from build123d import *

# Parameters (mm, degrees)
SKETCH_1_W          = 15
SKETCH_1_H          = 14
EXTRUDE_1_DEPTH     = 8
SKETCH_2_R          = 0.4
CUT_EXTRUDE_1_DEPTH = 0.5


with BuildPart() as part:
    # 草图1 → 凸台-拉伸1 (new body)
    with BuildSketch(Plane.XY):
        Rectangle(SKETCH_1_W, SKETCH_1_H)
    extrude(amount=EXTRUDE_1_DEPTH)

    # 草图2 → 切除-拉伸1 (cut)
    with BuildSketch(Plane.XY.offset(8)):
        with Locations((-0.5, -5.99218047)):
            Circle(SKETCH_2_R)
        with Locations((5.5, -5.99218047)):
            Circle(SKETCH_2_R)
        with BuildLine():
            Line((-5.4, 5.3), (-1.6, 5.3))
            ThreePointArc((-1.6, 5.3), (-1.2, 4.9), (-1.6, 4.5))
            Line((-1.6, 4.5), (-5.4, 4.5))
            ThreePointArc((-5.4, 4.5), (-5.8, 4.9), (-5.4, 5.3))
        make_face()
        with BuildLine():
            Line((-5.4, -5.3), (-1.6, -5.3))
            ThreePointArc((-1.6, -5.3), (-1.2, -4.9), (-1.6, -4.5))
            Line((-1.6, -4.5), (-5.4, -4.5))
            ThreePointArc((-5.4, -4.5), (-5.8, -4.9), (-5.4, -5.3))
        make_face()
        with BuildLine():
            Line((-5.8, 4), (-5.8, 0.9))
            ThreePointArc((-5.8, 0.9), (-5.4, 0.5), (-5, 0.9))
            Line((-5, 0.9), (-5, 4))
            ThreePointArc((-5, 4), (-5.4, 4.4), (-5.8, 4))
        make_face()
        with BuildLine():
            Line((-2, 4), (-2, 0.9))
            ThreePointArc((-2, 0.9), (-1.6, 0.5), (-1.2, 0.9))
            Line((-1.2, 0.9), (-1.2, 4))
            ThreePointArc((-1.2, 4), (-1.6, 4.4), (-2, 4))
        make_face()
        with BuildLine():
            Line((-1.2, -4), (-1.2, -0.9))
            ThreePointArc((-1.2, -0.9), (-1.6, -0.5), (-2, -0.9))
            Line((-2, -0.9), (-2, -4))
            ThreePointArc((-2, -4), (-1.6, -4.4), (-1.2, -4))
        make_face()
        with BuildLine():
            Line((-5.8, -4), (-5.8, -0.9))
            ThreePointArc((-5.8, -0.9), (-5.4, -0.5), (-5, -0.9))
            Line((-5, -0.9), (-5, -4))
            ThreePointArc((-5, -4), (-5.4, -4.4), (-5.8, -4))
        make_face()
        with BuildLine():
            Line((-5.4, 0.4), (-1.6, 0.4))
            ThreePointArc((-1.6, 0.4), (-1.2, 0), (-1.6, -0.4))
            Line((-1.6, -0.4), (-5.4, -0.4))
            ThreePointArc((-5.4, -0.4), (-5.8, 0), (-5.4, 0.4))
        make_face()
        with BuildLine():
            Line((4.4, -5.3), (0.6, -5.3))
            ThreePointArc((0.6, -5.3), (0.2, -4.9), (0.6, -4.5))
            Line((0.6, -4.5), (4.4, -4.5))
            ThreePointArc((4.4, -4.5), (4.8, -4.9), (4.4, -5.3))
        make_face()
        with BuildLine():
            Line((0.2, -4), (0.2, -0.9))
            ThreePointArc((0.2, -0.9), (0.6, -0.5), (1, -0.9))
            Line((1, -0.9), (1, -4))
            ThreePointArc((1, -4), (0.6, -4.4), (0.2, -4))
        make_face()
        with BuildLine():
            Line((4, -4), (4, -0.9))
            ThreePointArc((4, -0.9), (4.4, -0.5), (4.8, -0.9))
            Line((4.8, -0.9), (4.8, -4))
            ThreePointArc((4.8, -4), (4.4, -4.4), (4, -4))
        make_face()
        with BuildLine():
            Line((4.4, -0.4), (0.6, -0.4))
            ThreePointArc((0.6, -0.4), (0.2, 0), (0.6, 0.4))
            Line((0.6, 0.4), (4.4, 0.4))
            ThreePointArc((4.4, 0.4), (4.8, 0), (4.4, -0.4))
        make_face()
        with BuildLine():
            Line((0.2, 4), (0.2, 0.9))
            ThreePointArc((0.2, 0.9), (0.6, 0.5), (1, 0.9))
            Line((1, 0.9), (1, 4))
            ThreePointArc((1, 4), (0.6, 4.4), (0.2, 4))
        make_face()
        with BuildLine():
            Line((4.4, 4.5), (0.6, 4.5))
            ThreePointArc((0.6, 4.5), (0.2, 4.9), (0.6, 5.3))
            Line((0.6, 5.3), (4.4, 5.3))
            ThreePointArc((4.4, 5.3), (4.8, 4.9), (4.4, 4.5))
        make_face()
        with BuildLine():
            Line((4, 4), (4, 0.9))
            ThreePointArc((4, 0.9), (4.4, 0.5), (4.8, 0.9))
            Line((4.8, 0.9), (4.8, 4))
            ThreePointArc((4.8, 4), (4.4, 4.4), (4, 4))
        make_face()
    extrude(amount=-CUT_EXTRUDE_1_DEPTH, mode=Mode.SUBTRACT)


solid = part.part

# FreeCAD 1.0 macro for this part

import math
import FreeCAD as App
import Part
import Sketcher
from FreeCAD import Vector
Q = App.Units.Quantity


def add_polygon(sketch, points):
    """Adds a closed chain of lines whose ends are joined by coincident constraints."""
    first, n = sketch.GeometryCount, len(points)
    for a, b in zip(points, points[1:] + points[:1]):
        sketch.addGeometry(Part.LineSegment(App.Vector(*a, 0), App.Vector(*b, 0)), False)
    for i in range(n):
        sketch.addConstraint(Sketcher.Constraint("Coincident", first + i, 2, first + (i + 1) % n, 1))

doc = App.newDocument("Part")
params = doc.addObject("Spreadsheet::Sheet", "Params")
for row, (alias, value) in enumerate([
    ("sketch1_width", "15 mm"),
    ("sketch1_height", "14 mm"),
    ("pad1_length", "8 mm"),
    ("sketch2_diameter", "0.8 mm"),
    ("sketch2_width", "3.8 mm"),
    ("sketch2_height", "3.1 mm"),
    ("pocket1_length", "0.5 mm"),
], start=1):
    params.set(f"A{row}", alias)
    params.set(f"B{row}", "=" + value)
    params.setAlias(f"B{row}", alias)

body = doc.addObject("PartDesign::Body", "Body")

sketch1 = doc.addObject("Sketcher::SketchObject", "Sketch")
body.addObject(sketch1)
sketch1.AttachmentSupport = (doc.XY_Plane, [""])
sketch1.MapMode = "FlatFace"
add_polygon(sketch1, [(-7.5, 7), (-7.5, -7), (7.5, -7), (7.5, 7)])
sketch1.addConstraint(Sketcher.Constraint("Vertical", 0))
sketch1.addConstraint(Sketcher.Constraint("Horizontal", 1))
sketch1.addConstraint(Sketcher.Constraint("Vertical", 2))
sketch1.addConstraint(Sketcher.Constraint("Horizontal", 3))
sketch1.addConstraint(Sketcher.Constraint("Symmetric", 0, 2, 2, 2, -1, 1))
sketch1.addConstraint(Sketcher.Constraint("DistanceX", 1, 1, 1, 2, Q("15 mm")))
sketch1.addConstraint(Sketcher.Constraint("DistanceY", 0, 2, 0, 1, Q("14 mm")))
sketch1.setExpression("Constraints[9]", "Params.sketch1_width")
sketch1.setExpression("Constraints[10]", "Params.sketch1_height")
pad1 = doc.addObject("PartDesign::Pad", "Pad")
body.addObject(pad1)
pad1.Profile = sketch1
pad1.setExpression("Length", "Params.pad1_length")

sketch2 = doc.addObject("Sketcher::SketchObject", "Sketch001")
body.addObject(sketch2)
sketch2.AttachmentSupport = (doc.XY_Plane, [""])
sketch2.MapMode = "FlatFace"
sketch2.AttachmentOffset = App.Placement(Vector(0, 0, 8), App.Rotation())
sketch2.addGeometry(Part.Circle(Vector(-0.5, -5.99218, 0), Vector(0, 0, 1), 0.4), False)
sketch2.addGeometry(Part.Circle(Vector(5.5, -5.99218, 0), Vector(0, 0, 1), 0.4), False)
sketch2.addGeometry(Part.LineSegment(Vector(-1.6, 5.3, 0), Vector(-5.4, 5.3, 0)), False)
sketch2.addGeometry(Part.ArcOfCircle(Part.Circle(Vector(-5.4, 4.9, 0), Vector(0, 0, 1), 0.4), math.radians(90), math.radians(270)), False)
sketch2.addGeometry(Part.LineSegment(Vector(-5.4, 4.5, 0), Vector(-1.6, 4.5, 0)), False)
sketch2.addGeometry(Part.ArcOfCircle(Part.Circle(Vector(-1.6, 4.9, 0), Vector(0, 0, 1), 0.4), math.radians(-90), math.radians(90)), False)
sketch2.addGeometry(Part.LineSegment(Vector(-5.4, -5.3, 0), Vector(-1.6, -5.3, 0)), False)
sketch2.addGeometry(Part.ArcOfCircle(Part.Circle(Vector(-1.6, -4.9, 0), Vector(0, 0, 1), 0.4), math.radians(-90), math.radians(90)), False)
sketch2.addGeometry(Part.LineSegment(Vector(-1.6, -4.5, 0), Vector(-5.4, -4.5, 0)), False)
sketch2.addGeometry(Part.ArcOfCircle(Part.Circle(Vector(-5.4, -4.9, 0), Vector(0, 0, 1), 0.4), math.radians(90), math.radians(270)), False)
sketch2.addGeometry(Part.LineSegment(Vector(-5.8, 4, 0), Vector(-5.8, 0.9, 0)), False)
sketch2.addGeometry(Part.ArcOfCircle(Part.Circle(Vector(-5.4, 0.9, 0), Vector(0, 0, 1), 0.4), math.radians(180), math.radians(360)), False)
sketch2.addGeometry(Part.LineSegment(Vector(-5, 0.9, 0), Vector(-5, 4, 0)), False)
sketch2.addGeometry(Part.ArcOfCircle(Part.Circle(Vector(-5.4, 4, 0), Vector(0, 0, 1), 0.4), math.radians(0), math.radians(180)), False)
sketch2.addGeometry(Part.LineSegment(Vector(-2, 4, 0), Vector(-2, 0.9, 0)), False)
sketch2.addGeometry(Part.ArcOfCircle(Part.Circle(Vector(-1.6, 0.9, 0), Vector(0, 0, 1), 0.4), math.radians(180), math.radians(360)), False)
sketch2.addGeometry(Part.LineSegment(Vector(-1.2, 0.9, 0), Vector(-1.2, 4, 0)), False)
sketch2.addGeometry(Part.ArcOfCircle(Part.Circle(Vector(-1.6, 4, 0), Vector(0, 0, 1), 0.4), math.radians(0), math.radians(180)), False)
sketch2.addGeometry(Part.LineSegment(Vector(-1.2, -4, 0), Vector(-1.2, -0.9, 0)), False)
sketch2.addGeometry(Part.ArcOfCircle(Part.Circle(Vector(-1.6, -0.9, 0), Vector(0, 0, 1), 0.4), math.radians(0), math.radians(180)), False)
sketch2.addGeometry(Part.LineSegment(Vector(-2, -0.9, 0), Vector(-2, -4, 0)), False)
sketch2.addGeometry(Part.ArcOfCircle(Part.Circle(Vector(-1.6, -4, 0), Vector(0, 0, 1), 0.4), math.radians(180), math.radians(360)), False)
sketch2.addGeometry(Part.LineSegment(Vector(-5.8, -0.9, 0), Vector(-5.8, -4, 0)), False)
sketch2.addGeometry(Part.ArcOfCircle(Part.Circle(Vector(-5.4, -4, 0), Vector(0, 0, 1), 0.4), math.radians(180), math.radians(360)), False)
sketch2.addGeometry(Part.LineSegment(Vector(-5, -4, 0), Vector(-5, -0.9, 0)), False)
sketch2.addGeometry(Part.ArcOfCircle(Part.Circle(Vector(-5.4, -0.9, 0), Vector(0, 0, 1), 0.4), math.radians(0), math.radians(180)), False)
sketch2.addGeometry(Part.LineSegment(Vector(-1.6, 0.4, 0), Vector(-5.4, 0.4, 0)), False)
sketch2.addGeometry(Part.ArcOfCircle(Part.Circle(Vector(-5.4, 0, 0), Vector(0, 0, 1), 0.4), math.radians(90), math.radians(270)), False)
sketch2.addGeometry(Part.LineSegment(Vector(-5.4, -0.4, 0), Vector(-1.6, -0.4, 0)), False)
sketch2.addGeometry(Part.ArcOfCircle(Part.Circle(Vector(-1.6, 0, 0), Vector(0, 0, 1), 0.4), math.radians(-90), math.radians(90)), False)
sketch2.addGeometry(Part.LineSegment(Vector(0.6, -5.3, 0), Vector(4.4, -5.3, 0)), False)
sketch2.addGeometry(Part.ArcOfCircle(Part.Circle(Vector(4.4, -4.9, 0), Vector(0, 0, 1), 0.4), math.radians(-90), math.radians(90)), False)
sketch2.addGeometry(Part.LineSegment(Vector(4.4, -4.5, 0), Vector(0.6, -4.5, 0)), False)
sketch2.addGeometry(Part.ArcOfCircle(Part.Circle(Vector(0.6, -4.9, 0), Vector(0, 0, 1), 0.4), math.radians(90), math.radians(270)), False)
sketch2.addGeometry(Part.LineSegment(Vector(0.2, -0.9, 0), Vector(0.2, -4, 0)), False)
sketch2.addGeometry(Part.ArcOfCircle(Part.Circle(Vector(0.6, -4, 0), Vector(0, 0, 1), 0.4), math.radians(180), math.radians(360)), False)
sketch2.addGeometry(Part.LineSegment(Vector(1, -4, 0), Vector(1, -0.9, 0)), False)
sketch2.addGeometry(Part.ArcOfCircle(Part.Circle(Vector(0.6, -0.9, 0), Vector(0, 0, 1), 0.4), math.radians(0), math.radians(180)), False)
sketch2.addGeometry(Part.LineSegment(Vector(4, -0.9, 0), Vector(4, -4, 0)), False)
sketch2.addGeometry(Part.ArcOfCircle(Part.Circle(Vector(4.4, -4, 0), Vector(0, 0, 1), 0.4), math.radians(180), math.radians(360)), False)
sketch2.addGeometry(Part.LineSegment(Vector(4.8, -4, 0), Vector(4.8, -0.9, 0)), False)
sketch2.addGeometry(Part.ArcOfCircle(Part.Circle(Vector(4.4, -0.9, 0), Vector(0, 0, 1), 0.4), math.radians(0), math.radians(180)), False)
sketch2.addGeometry(Part.LineSegment(Vector(0.6, -0.4, 0), Vector(4.4, -0.4, 0)), False)
sketch2.addGeometry(Part.ArcOfCircle(Part.Circle(Vector(4.4, 0, 0), Vector(0, 0, 1), 0.4), math.radians(-90), math.radians(90)), False)
sketch2.addGeometry(Part.LineSegment(Vector(4.4, 0.4, 0), Vector(0.6, 0.4, 0)), False)
sketch2.addGeometry(Part.ArcOfCircle(Part.Circle(Vector(0.6, 0, 0), Vector(0, 0, 1), 0.4), math.radians(90), math.radians(270)), False)
sketch2.addGeometry(Part.LineSegment(Vector(0.2, 4, 0), Vector(0.2, 0.9, 0)), False)
sketch2.addGeometry(Part.ArcOfCircle(Part.Circle(Vector(0.6, 0.9, 0), Vector(0, 0, 1), 0.4), math.radians(180), math.radians(360)), False)
sketch2.addGeometry(Part.LineSegment(Vector(1, 0.9, 0), Vector(1, 4, 0)), False)
sketch2.addGeometry(Part.ArcOfCircle(Part.Circle(Vector(0.6, 4, 0), Vector(0, 0, 1), 0.4), math.radians(0), math.radians(180)), False)
sketch2.addGeometry(Part.LineSegment(Vector(0.6, 4.5, 0), Vector(4.4, 4.5, 0)), False)
sketch2.addGeometry(Part.ArcOfCircle(Part.Circle(Vector(4.4, 4.9, 0), Vector(0, 0, 1), 0.4), math.radians(-90), math.radians(90)), False)
sketch2.addGeometry(Part.LineSegment(Vector(4.4, 5.3, 0), Vector(0.6, 5.3, 0)), False)
sketch2.addGeometry(Part.ArcOfCircle(Part.Circle(Vector(0.6, 4.9, 0), Vector(0, 0, 1), 0.4), math.radians(90), math.radians(270)), False)
sketch2.addGeometry(Part.LineSegment(Vector(4, 4, 0), Vector(4, 0.9, 0)), False)
sketch2.addGeometry(Part.ArcOfCircle(Part.Circle(Vector(4.4, 0.9, 0), Vector(0, 0, 1), 0.4), math.radians(180), math.radians(360)), False)
sketch2.addGeometry(Part.LineSegment(Vector(4.8, 0.9, 0), Vector(4.8, 4, 0)), False)
sketch2.addGeometry(Part.ArcOfCircle(Part.Circle(Vector(4.4, 4, 0), Vector(0, 0, 1), 0.4), math.radians(0), math.radians(180)), False)
sketch2.addConstraint(Sketcher.Constraint("Tangent", 2, 2, 3, 1))
sketch2.addConstraint(Sketcher.Constraint("Tangent", 3, 2, 4, 1))
sketch2.addConstraint(Sketcher.Constraint("Tangent", 4, 2, 5, 1))
sketch2.addConstraint(Sketcher.Constraint("Tangent", 5, 2, 2, 1))
sketch2.addConstraint(Sketcher.Constraint("Tangent", 6, 2, 7, 1))
sketch2.addConstraint(Sketcher.Constraint("Tangent", 7, 2, 8, 1))
sketch2.addConstraint(Sketcher.Constraint("Tangent", 8, 2, 9, 1))
sketch2.addConstraint(Sketcher.Constraint("Tangent", 9, 2, 6, 1))
sketch2.addConstraint(Sketcher.Constraint("Tangent", 10, 2, 11, 1))
sketch2.addConstraint(Sketcher.Constraint("Tangent", 11, 2, 12, 1))
sketch2.addConstraint(Sketcher.Constraint("Tangent", 12, 2, 13, 1))
sketch2.addConstraint(Sketcher.Constraint("Tangent", 13, 2, 10, 1))
sketch2.addConstraint(Sketcher.Constraint("Tangent", 14, 2, 15, 1))
sketch2.addConstraint(Sketcher.Constraint("Tangent", 15, 2, 16, 1))
sketch2.addConstraint(Sketcher.Constraint("Tangent", 16, 2, 17, 1))
sketch2.addConstraint(Sketcher.Constraint("Tangent", 17, 2, 14, 1))
sketch2.addConstraint(Sketcher.Constraint("Tangent", 18, 2, 19, 1))
sketch2.addConstraint(Sketcher.Constraint("Tangent", 19, 2, 20, 1))
sketch2.addConstraint(Sketcher.Constraint("Tangent", 20, 2, 21, 1))
sketch2.addConstraint(Sketcher.Constraint("Tangent", 21, 2, 18, 1))
sketch2.addConstraint(Sketcher.Constraint("Tangent", 22, 2, 23, 1))
sketch2.addConstraint(Sketcher.Constraint("Tangent", 23, 2, 24, 1))
sketch2.addConstraint(Sketcher.Constraint("Tangent", 24, 2, 25, 1))
sketch2.addConstraint(Sketcher.Constraint("Tangent", 25, 2, 22, 1))
sketch2.addConstraint(Sketcher.Constraint("Tangent", 26, 2, 27, 1))
sketch2.addConstraint(Sketcher.Constraint("Tangent", 27, 2, 28, 1))
sketch2.addConstraint(Sketcher.Constraint("Tangent", 28, 2, 29, 1))
sketch2.addConstraint(Sketcher.Constraint("Tangent", 29, 2, 26, 1))
sketch2.addConstraint(Sketcher.Constraint("Tangent", 30, 2, 31, 1))
sketch2.addConstraint(Sketcher.Constraint("Tangent", 31, 2, 32, 1))
sketch2.addConstraint(Sketcher.Constraint("Tangent", 32, 2, 33, 1))
sketch2.addConstraint(Sketcher.Constraint("Tangent", 33, 2, 30, 1))
sketch2.addConstraint(Sketcher.Constraint("Tangent", 34, 2, 35, 1))
sketch2.addConstraint(Sketcher.Constraint("Tangent", 35, 2, 36, 1))
sketch2.addConstraint(Sketcher.Constraint("Tangent", 36, 2, 37, 1))
sketch2.addConstraint(Sketcher.Constraint("Tangent", 37, 2, 34, 1))
sketch2.addConstraint(Sketcher.Constraint("Tangent", 38, 2, 39, 1))
sketch2.addConstraint(Sketcher.Constraint("Tangent", 39, 2, 40, 1))
sketch2.addConstraint(Sketcher.Constraint("Tangent", 40, 2, 41, 1))
sketch2.addConstraint(Sketcher.Constraint("Tangent", 41, 2, 38, 1))
sketch2.addConstraint(Sketcher.Constraint("Tangent", 42, 2, 43, 1))
sketch2.addConstraint(Sketcher.Constraint("Tangent", 43, 2, 44, 1))
sketch2.addConstraint(Sketcher.Constraint("Tangent", 44, 2, 45, 1))
sketch2.addConstraint(Sketcher.Constraint("Tangent", 45, 2, 42, 1))
sketch2.addConstraint(Sketcher.Constraint("Tangent", 46, 2, 47, 1))
sketch2.addConstraint(Sketcher.Constraint("Tangent", 47, 2, 48, 1))
sketch2.addConstraint(Sketcher.Constraint("Tangent", 48, 2, 49, 1))
sketch2.addConstraint(Sketcher.Constraint("Tangent", 49, 2, 46, 1))
sketch2.addConstraint(Sketcher.Constraint("Tangent", 50, 2, 51, 1))
sketch2.addConstraint(Sketcher.Constraint("Tangent", 51, 2, 52, 1))
sketch2.addConstraint(Sketcher.Constraint("Tangent", 52, 2, 53, 1))
sketch2.addConstraint(Sketcher.Constraint("Tangent", 53, 2, 50, 1))
sketch2.addConstraint(Sketcher.Constraint("Tangent", 54, 2, 55, 1))
sketch2.addConstraint(Sketcher.Constraint("Tangent", 55, 2, 56, 1))
sketch2.addConstraint(Sketcher.Constraint("Tangent", 56, 2, 57, 1))
sketch2.addConstraint(Sketcher.Constraint("Tangent", 57, 2, 54, 1))
sketch2.addConstraint(Sketcher.Constraint("Horizontal", 2))
sketch2.addConstraint(Sketcher.Constraint("Horizontal", 4))
sketch2.addConstraint(Sketcher.Constraint("Horizontal", 6))
sketch2.addConstraint(Sketcher.Constraint("Horizontal", 8))
sketch2.addConstraint(Sketcher.Constraint("Vertical", 10))
sketch2.addConstraint(Sketcher.Constraint("Vertical", 12))
sketch2.addConstraint(Sketcher.Constraint("Vertical", 14))
sketch2.addConstraint(Sketcher.Constraint("Vertical", 16))
sketch2.addConstraint(Sketcher.Constraint("Vertical", 18))
sketch2.addConstraint(Sketcher.Constraint("Vertical", 20))
sketch2.addConstraint(Sketcher.Constraint("Vertical", 22))
sketch2.addConstraint(Sketcher.Constraint("Vertical", 24))
sketch2.addConstraint(Sketcher.Constraint("Horizontal", 26))
sketch2.addConstraint(Sketcher.Constraint("Horizontal", 28))
sketch2.addConstraint(Sketcher.Constraint("Horizontal", 30))
sketch2.addConstraint(Sketcher.Constraint("Horizontal", 32))
sketch2.addConstraint(Sketcher.Constraint("Vertical", 34))
sketch2.addConstraint(Sketcher.Constraint("Vertical", 36))
sketch2.addConstraint(Sketcher.Constraint("Vertical", 38))
sketch2.addConstraint(Sketcher.Constraint("Vertical", 40))
sketch2.addConstraint(Sketcher.Constraint("Horizontal", 42))
sketch2.addConstraint(Sketcher.Constraint("Horizontal", 44))
sketch2.addConstraint(Sketcher.Constraint("Vertical", 46))
sketch2.addConstraint(Sketcher.Constraint("Vertical", 48))
sketch2.addConstraint(Sketcher.Constraint("Horizontal", 50))
sketch2.addConstraint(Sketcher.Constraint("Horizontal", 52))
sketch2.addConstraint(Sketcher.Constraint("Vertical", 54))
sketch2.addConstraint(Sketcher.Constraint("Vertical", 56))
sketch2.addConstraint(Sketcher.Constraint("Equal", 0, 1))
sketch2.addConstraint(Sketcher.Constraint("Equal", 1, 3))
sketch2.addConstraint(Sketcher.Constraint("Equal", 5, 7))
sketch2.addConstraint(Sketcher.Constraint("Equal", 9, 11))
sketch2.addConstraint(Sketcher.Constraint("Equal", 13, 15))
sketch2.addConstraint(Sketcher.Constraint("Equal", 17, 19))
sketch2.addConstraint(Sketcher.Constraint("Equal", 21, 23))
sketch2.addConstraint(Sketcher.Constraint("Equal", 25, 27))
sketch2.addConstraint(Sketcher.Constraint("Equal", 29, 31))
sketch2.addConstraint(Sketcher.Constraint("Equal", 33, 35))
sketch2.addConstraint(Sketcher.Constraint("Equal", 37, 39))
sketch2.addConstraint(Sketcher.Constraint("Equal", 41, 43))
sketch2.addConstraint(Sketcher.Constraint("Equal", 45, 47))
sketch2.addConstraint(Sketcher.Constraint("Equal", 49, 51))
sketch2.addConstraint(Sketcher.Constraint("Equal", 53, 55))
sketch2.addConstraint(Sketcher.Constraint("Symmetric", 5, 3, 7, 3, -1))
sketch2.addConstraint(Sketcher.Constraint("Symmetric", 15, 3, 19, 3, -1))
sketch2.addConstraint(Sketcher.Constraint("Symmetric", 13, 3, 23, 3, -1))
sketch2.addConstraint(Sketcher.Constraint("Symmetric", 37, 3, 47, 3, -1))
sketch2.addConstraint(Sketcher.Constraint("Symmetric", 31, 3, 51, 3, -1))
sketch2.addConstraint(Sketcher.Constraint("Symmetric", 41, 3, 55, 3, -1))
sketch2.addConstraint(Sketcher.Constraint("PointOnObject", 27, 3, -1))
sketch2.addConstraint(Sketcher.Constraint("PointOnObject", 43, 3, -1))
sketch2.addConstraint(Sketcher.Constraint("Horizontal", 0, 3, 1, 3))
sketch2.addConstraint(Sketcher.Constraint("Horizontal", 11, 3, 15, 3))
sketch2.addConstraint(Sketcher.Constraint("Horizontal", 13, 3, 17, 3))
sketch2.addConstraint(Sketcher.Constraint("Horizontal", 21, 3, 23, 3))
sketch2.addConstraint(Sketcher.Constraint("Horizontal", 19, 3, 25, 3))
sketch2.addConstraint(Sketcher.Constraint("Horizontal", 9, 3, 31, 3))
sketch2.addConstraint(Sketcher.Constraint("Horizontal", 23, 3, 35, 3))
sketch2.addConstraint(Sketcher.Constraint("Horizontal", 25, 3, 37, 3))
sketch2.addConstraint(Sketcher.Constraint("Horizontal", 35, 3, 39, 3))
sketch2.addConstraint(Sketcher.Constraint("Horizontal", 37, 3, 41, 3))
sketch2.addConstraint(Sketcher.Constraint("Horizontal", 17, 3, 49, 3))
sketch2.addConstraint(Sketcher.Constraint("Horizontal", 49, 3, 57, 3))
sketch2.addConstraint(Sketcher.Constraint("Vertical", 3, 3, 9, 3))
sketch2.addConstraint(Sketcher.Constraint("Vertical", 9, 3, 11, 3))
sketch2.addConstraint(Sketcher.Constraint("Vertical", 7, 3, 15, 3))
sketch2.addConstraint(Sketcher.Constraint("Vertical", 25, 3, 27, 3))
sketch2.addConstraint(Sketcher.Constraint("Vertical", 21, 3, 29, 3))
sketch2.addConstraint(Sketcher.Constraint("Vertical", 33, 3, 35, 3))
sketch2.addConstraint(Sketcher.Constraint("Vertical", 31, 3, 39, 3))
sketch2.addConstraint(Sketcher.Constraint("Vertical", 41, 3, 43, 3))
sketch2.addConstraint(Sketcher.Constraint("Vertical", 37, 3, 45, 3))
sketch2.addConstraint(Sketcher.Constraint("Vertical", 49, 3, 53, 3))
sketch2.addConstraint(Sketcher.Constraint("Equal", 28, 30))
sketch2.addConstraint(Sketcher.Constraint("Diameter", 0, Q("0.8 mm")))
sketch2.addConstraint(Sketcher.Constraint("DistanceX", 2, 2, 2, 1, Q("3.8 mm")))
sketch2.addConstraint(Sketcher.Constraint("DistanceY", 10, 2, 10, 1, Q("3.1 mm")))
sketch2.addConstraint(Sketcher.Constraint("DistanceY", -1, 1, 13, 3, Q("4 mm")))
sketch2.addConstraint(Sketcher.Constraint("DistanceX", 11, 2, -1, 1, Q("5 mm")))
sketch2.addConstraint(Sketcher.Constraint("DistanceX", -1, 1, 35, 2, Q("1 mm")))
sketch2.addConstraint(Sketcher.Constraint("DistanceX", 0, 3, -1, 1, Q("0.5 mm")))
sketch2.addConstraint(Sketcher.Constraint("DistanceX", -1, 1, 1, 3, Q("5.5 mm")))
sketch2.addConstraint(Sketcher.Constraint("DistanceY", -1, 1, 3, 3, Q("4.9 mm")))
sketch2.addConstraint(Sketcher.Constraint("DistanceY", 0, 3, -1, 1, Q("5.99218 mm")))
sketch2.setExpression("Constraints[130]", "Params.sketch2_diameter")
sketch2.setExpression("Constraints[131]", "Params.sketch2_width")
sketch2.setExpression("Constraints[132]", "Params.sketch2_height")
pocket1 = doc.addObject("PartDesign::Pocket", "Pocket")
body.addObject(pocket1)
pocket1.Profile = sketch2
pocket1.setExpression("Length", "Params.pocket1_length")

doc.recompute()
